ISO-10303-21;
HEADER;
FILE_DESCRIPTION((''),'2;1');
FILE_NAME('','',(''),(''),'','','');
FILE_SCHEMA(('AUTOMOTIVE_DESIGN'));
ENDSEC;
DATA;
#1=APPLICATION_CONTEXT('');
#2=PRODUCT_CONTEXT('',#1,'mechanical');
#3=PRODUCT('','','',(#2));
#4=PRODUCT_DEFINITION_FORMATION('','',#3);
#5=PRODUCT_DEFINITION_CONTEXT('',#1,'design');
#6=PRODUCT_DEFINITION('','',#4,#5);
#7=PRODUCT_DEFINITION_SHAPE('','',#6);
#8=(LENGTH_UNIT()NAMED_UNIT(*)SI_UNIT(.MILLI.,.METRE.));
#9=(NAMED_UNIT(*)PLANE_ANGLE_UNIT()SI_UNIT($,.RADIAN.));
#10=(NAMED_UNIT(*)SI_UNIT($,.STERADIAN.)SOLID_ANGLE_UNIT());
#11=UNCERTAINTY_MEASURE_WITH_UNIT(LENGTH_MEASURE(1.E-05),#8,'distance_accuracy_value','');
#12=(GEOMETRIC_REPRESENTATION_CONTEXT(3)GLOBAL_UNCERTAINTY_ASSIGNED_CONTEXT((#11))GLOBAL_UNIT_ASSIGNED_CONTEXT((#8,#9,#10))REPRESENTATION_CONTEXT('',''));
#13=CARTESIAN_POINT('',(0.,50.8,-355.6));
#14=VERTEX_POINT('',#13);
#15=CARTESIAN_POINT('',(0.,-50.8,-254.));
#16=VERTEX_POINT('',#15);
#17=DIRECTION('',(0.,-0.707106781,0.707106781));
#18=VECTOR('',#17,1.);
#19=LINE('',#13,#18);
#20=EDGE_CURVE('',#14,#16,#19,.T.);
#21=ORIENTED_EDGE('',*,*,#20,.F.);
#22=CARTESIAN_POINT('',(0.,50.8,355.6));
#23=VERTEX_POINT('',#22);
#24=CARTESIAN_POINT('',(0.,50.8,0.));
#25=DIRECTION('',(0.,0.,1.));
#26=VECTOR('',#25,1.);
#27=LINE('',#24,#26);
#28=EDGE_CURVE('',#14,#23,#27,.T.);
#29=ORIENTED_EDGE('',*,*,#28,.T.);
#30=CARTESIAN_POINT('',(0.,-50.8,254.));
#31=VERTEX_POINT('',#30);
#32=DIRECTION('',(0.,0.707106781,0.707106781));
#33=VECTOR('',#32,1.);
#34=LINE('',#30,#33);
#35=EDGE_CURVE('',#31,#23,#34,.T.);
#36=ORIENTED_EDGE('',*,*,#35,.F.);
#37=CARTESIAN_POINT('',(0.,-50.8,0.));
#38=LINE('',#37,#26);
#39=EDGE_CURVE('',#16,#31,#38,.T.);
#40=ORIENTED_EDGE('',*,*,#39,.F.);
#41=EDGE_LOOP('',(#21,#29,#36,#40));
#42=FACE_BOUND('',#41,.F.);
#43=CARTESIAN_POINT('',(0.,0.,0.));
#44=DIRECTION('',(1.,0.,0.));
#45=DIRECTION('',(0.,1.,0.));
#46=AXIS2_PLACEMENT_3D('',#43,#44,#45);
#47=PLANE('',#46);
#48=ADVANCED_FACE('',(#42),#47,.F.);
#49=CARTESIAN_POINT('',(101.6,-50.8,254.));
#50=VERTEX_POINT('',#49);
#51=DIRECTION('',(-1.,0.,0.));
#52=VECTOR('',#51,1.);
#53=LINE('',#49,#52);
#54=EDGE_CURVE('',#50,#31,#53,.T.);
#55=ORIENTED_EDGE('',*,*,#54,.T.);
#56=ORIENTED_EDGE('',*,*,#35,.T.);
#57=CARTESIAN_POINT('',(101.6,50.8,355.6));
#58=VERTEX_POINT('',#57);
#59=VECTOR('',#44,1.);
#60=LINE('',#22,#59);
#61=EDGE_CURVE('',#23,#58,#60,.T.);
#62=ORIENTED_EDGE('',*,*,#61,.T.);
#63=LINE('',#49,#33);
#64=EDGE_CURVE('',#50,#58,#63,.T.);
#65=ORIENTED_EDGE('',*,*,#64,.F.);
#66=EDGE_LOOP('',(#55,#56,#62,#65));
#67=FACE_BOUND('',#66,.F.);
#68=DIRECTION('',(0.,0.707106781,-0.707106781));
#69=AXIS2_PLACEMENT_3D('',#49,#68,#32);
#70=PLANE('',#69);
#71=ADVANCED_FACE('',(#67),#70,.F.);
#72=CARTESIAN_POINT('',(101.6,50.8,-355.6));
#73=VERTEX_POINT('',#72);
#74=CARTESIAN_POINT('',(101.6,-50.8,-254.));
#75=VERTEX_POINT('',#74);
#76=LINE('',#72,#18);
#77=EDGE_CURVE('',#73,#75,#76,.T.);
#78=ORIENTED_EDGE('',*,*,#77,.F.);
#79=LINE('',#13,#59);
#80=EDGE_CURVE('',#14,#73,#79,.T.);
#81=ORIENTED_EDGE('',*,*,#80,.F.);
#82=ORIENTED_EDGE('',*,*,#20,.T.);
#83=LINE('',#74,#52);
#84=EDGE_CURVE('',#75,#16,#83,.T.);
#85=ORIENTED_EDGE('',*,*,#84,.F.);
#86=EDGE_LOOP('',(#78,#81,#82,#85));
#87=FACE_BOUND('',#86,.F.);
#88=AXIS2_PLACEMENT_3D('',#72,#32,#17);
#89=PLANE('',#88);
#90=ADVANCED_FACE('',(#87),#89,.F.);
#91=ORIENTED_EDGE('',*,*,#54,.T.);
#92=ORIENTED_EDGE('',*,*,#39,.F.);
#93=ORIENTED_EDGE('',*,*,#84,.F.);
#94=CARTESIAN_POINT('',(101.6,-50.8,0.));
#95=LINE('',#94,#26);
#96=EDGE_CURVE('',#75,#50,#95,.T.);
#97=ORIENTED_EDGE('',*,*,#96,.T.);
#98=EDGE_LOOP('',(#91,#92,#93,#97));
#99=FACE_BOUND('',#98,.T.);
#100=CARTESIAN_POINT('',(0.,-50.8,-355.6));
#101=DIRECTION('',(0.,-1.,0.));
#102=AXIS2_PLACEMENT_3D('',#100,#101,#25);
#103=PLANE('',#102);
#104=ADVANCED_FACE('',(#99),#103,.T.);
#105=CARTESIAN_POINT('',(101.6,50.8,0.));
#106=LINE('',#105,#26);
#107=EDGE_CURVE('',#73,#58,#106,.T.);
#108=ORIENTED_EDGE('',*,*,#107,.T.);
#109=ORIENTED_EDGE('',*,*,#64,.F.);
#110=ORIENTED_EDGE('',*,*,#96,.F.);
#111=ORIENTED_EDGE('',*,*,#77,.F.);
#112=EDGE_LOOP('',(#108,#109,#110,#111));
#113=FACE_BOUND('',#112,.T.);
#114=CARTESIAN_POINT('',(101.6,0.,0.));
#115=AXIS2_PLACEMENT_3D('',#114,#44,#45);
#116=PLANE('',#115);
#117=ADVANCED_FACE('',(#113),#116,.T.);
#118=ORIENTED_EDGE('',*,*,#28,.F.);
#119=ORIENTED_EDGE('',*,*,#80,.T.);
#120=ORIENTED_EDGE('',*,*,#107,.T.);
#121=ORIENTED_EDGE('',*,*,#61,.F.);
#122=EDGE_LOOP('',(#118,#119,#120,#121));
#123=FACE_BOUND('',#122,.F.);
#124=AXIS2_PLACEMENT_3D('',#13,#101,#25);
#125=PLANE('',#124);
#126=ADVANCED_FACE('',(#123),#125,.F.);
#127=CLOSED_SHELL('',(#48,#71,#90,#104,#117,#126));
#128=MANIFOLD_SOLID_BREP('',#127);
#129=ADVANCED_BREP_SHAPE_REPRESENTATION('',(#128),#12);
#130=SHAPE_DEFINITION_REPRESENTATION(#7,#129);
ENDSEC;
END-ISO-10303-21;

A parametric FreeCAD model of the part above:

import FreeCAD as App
import Part
import Sketcher
Q = App.Units.Quantity

doc = App.newDocument("Part")
body = doc.addObject("PartDesign::Body", "Body")

# Sketch on YZ plane
sketch1 = body.newObject("Sketcher::SketchObject", "Sketch")
sketch1.AttachmentSupport = (doc.getObject("YZ_Plane"), [""])
sketch1.MapMode = "FlatFace"
sketch1.addGeometry(Part.LineSegment(App.Vector(-51, 356, 0), App.Vector(-51, -356, 0)), False)
sketch1.addGeometry(Part.LineSegment(App.Vector(-51, -356, 0), App.Vector(51, -356, 0)), False)
sketch1.addGeometry(Part.LineSegment(App.Vector(51, -356, 0), App.Vector(51, 356, 0)), False)
sketch1.addGeometry(Part.LineSegment(App.Vector(51, 356, 0), App.Vector(-51, 356, 0)), False)
sketch1.addConstraint(Sketcher.Constraint("Coincident", 0, 2, 1, 1))
sketch1.addConstraint(Sketcher.Constraint("Coincident", 1, 2, 2, 1))
sketch1.addConstraint(Sketcher.Constraint("Coincident", 2, 2, 3, 1))
sketch1.addConstraint(Sketcher.Constraint("Coincident", 3, 2, 0, 1))
sketch1.addConstraint(Sketcher.Constraint("Vertical", 0))
sketch1.addConstraint(Sketcher.Constraint("Horizontal", 1))
sketch1.addConstraint(Sketcher.Constraint("Vertical", 2))
sketch1.addConstraint(Sketcher.Constraint("Horizontal", 3))
sketch1.addConstraint(Sketcher.Constraint("Symmetric", 0, 2, 2, 2, -1, 1))
sketch1.addConstraint(Sketcher.Constraint("DistanceX", 1, 1, 1, 2, Q("4 in")))
sketch1.addConstraint(Sketcher.Constraint("DistanceY", 0, 2, 0, 1, Q("28 in")))
pad1 = body.newObject("PartDesign::Pad", "Pad")
pad1.Profile = sketch1
pad1.Length = Q("4 in")

# Sketch on YZ plane
sketch2 = body.newObject("Sketcher::SketchObject", "Sketch001")
sketch2.AttachmentSupport = (doc.getObject("YZ_Plane"), [""])
sketch2.MapMode = "FlatFace"
sketch2.AttachmentOffset = App.Placement(App.Vector(0, 0, 4 * 25.4), App.Rotation())
sketch2.addGeometry(Part.LineSegment(App.Vector(-51, 254, 0), App.Vector(51, 356, 0)), False)
sketch2.addGeometry(Part.LineSegment(App.Vector(51, 356, 0), App.Vector(-51, 356, 0)), False)
sketch2.addGeometry(Part.LineSegment(App.Vector(-51, 356, 0), App.Vector(-51, 254, 0)), False)
sketch2.addGeometry(Part.LineSegment(App.Vector(-51, -356, 0), App.Vector(51, -356, 0)), False)
sketch2.addGeometry(Part.LineSegment(App.Vector(51, -356, 0), App.Vector(-51, -254, 0)), False)
sketch2.addGeometry(Part.LineSegment(App.Vector(-51, -254, 0), App.Vector(-51, -356, 0)), False)
sketch2.addConstraint(Sketcher.Constraint("Coincident", 0, 2, 1, 1))
sketch2.addConstraint(Sketcher.Constraint("Coincident", 1, 2, 2, 1))
sketch2.addConstraint(Sketcher.Constraint("Coincident", 2, 2, 0, 1))
sketch2.addConstraint(Sketcher.Constraint("Coincident", 3, 2, 4, 1))
sketch2.addConstraint(Sketcher.Constraint("Coincident", 4, 2, 5, 1))
sketch2.addConstraint(Sketcher.Constraint("Coincident", 5, 2, 3, 1))
sketch2.addConstraint(Sketcher.Constraint("Horizontal", 1))
sketch2.addConstraint(Sketcher.Constraint("Vertical", 2))
sketch2.addConstraint(Sketcher.Constraint("Horizontal", 3))
sketch2.addConstraint(Sketcher.Constraint("Vertical", 5))
sketch2.addConstraint(Sketcher.Constraint("Symmetric", 1, 2, 3, 2, -1, 1))
sketch2.addConstraint(Sketcher.Constraint("Symmetric", 2, 2, 4, 2, -1))
sketch2.addConstraint(Sketcher.Constraint("Perpendicular", 0, 4))
sketch2.addConstraint(Sketcher.Constraint("Vertical", 0, 2, 3, 2))
sketch2.addConstraint(Sketcher.Constraint("DistanceX", 1, 2, 1, 1, Q("4 in")))
sketch2.addConstraint(Sketcher.Constraint("DistanceY", -1, 1, 0, 2, Q("14 in")))
pocket1 = body.newObject("PartDesign::Pocket", "Pocket")
pocket1.Profile = sketch2
pocket1.Length = Q("4 in")

doc.recompute()
